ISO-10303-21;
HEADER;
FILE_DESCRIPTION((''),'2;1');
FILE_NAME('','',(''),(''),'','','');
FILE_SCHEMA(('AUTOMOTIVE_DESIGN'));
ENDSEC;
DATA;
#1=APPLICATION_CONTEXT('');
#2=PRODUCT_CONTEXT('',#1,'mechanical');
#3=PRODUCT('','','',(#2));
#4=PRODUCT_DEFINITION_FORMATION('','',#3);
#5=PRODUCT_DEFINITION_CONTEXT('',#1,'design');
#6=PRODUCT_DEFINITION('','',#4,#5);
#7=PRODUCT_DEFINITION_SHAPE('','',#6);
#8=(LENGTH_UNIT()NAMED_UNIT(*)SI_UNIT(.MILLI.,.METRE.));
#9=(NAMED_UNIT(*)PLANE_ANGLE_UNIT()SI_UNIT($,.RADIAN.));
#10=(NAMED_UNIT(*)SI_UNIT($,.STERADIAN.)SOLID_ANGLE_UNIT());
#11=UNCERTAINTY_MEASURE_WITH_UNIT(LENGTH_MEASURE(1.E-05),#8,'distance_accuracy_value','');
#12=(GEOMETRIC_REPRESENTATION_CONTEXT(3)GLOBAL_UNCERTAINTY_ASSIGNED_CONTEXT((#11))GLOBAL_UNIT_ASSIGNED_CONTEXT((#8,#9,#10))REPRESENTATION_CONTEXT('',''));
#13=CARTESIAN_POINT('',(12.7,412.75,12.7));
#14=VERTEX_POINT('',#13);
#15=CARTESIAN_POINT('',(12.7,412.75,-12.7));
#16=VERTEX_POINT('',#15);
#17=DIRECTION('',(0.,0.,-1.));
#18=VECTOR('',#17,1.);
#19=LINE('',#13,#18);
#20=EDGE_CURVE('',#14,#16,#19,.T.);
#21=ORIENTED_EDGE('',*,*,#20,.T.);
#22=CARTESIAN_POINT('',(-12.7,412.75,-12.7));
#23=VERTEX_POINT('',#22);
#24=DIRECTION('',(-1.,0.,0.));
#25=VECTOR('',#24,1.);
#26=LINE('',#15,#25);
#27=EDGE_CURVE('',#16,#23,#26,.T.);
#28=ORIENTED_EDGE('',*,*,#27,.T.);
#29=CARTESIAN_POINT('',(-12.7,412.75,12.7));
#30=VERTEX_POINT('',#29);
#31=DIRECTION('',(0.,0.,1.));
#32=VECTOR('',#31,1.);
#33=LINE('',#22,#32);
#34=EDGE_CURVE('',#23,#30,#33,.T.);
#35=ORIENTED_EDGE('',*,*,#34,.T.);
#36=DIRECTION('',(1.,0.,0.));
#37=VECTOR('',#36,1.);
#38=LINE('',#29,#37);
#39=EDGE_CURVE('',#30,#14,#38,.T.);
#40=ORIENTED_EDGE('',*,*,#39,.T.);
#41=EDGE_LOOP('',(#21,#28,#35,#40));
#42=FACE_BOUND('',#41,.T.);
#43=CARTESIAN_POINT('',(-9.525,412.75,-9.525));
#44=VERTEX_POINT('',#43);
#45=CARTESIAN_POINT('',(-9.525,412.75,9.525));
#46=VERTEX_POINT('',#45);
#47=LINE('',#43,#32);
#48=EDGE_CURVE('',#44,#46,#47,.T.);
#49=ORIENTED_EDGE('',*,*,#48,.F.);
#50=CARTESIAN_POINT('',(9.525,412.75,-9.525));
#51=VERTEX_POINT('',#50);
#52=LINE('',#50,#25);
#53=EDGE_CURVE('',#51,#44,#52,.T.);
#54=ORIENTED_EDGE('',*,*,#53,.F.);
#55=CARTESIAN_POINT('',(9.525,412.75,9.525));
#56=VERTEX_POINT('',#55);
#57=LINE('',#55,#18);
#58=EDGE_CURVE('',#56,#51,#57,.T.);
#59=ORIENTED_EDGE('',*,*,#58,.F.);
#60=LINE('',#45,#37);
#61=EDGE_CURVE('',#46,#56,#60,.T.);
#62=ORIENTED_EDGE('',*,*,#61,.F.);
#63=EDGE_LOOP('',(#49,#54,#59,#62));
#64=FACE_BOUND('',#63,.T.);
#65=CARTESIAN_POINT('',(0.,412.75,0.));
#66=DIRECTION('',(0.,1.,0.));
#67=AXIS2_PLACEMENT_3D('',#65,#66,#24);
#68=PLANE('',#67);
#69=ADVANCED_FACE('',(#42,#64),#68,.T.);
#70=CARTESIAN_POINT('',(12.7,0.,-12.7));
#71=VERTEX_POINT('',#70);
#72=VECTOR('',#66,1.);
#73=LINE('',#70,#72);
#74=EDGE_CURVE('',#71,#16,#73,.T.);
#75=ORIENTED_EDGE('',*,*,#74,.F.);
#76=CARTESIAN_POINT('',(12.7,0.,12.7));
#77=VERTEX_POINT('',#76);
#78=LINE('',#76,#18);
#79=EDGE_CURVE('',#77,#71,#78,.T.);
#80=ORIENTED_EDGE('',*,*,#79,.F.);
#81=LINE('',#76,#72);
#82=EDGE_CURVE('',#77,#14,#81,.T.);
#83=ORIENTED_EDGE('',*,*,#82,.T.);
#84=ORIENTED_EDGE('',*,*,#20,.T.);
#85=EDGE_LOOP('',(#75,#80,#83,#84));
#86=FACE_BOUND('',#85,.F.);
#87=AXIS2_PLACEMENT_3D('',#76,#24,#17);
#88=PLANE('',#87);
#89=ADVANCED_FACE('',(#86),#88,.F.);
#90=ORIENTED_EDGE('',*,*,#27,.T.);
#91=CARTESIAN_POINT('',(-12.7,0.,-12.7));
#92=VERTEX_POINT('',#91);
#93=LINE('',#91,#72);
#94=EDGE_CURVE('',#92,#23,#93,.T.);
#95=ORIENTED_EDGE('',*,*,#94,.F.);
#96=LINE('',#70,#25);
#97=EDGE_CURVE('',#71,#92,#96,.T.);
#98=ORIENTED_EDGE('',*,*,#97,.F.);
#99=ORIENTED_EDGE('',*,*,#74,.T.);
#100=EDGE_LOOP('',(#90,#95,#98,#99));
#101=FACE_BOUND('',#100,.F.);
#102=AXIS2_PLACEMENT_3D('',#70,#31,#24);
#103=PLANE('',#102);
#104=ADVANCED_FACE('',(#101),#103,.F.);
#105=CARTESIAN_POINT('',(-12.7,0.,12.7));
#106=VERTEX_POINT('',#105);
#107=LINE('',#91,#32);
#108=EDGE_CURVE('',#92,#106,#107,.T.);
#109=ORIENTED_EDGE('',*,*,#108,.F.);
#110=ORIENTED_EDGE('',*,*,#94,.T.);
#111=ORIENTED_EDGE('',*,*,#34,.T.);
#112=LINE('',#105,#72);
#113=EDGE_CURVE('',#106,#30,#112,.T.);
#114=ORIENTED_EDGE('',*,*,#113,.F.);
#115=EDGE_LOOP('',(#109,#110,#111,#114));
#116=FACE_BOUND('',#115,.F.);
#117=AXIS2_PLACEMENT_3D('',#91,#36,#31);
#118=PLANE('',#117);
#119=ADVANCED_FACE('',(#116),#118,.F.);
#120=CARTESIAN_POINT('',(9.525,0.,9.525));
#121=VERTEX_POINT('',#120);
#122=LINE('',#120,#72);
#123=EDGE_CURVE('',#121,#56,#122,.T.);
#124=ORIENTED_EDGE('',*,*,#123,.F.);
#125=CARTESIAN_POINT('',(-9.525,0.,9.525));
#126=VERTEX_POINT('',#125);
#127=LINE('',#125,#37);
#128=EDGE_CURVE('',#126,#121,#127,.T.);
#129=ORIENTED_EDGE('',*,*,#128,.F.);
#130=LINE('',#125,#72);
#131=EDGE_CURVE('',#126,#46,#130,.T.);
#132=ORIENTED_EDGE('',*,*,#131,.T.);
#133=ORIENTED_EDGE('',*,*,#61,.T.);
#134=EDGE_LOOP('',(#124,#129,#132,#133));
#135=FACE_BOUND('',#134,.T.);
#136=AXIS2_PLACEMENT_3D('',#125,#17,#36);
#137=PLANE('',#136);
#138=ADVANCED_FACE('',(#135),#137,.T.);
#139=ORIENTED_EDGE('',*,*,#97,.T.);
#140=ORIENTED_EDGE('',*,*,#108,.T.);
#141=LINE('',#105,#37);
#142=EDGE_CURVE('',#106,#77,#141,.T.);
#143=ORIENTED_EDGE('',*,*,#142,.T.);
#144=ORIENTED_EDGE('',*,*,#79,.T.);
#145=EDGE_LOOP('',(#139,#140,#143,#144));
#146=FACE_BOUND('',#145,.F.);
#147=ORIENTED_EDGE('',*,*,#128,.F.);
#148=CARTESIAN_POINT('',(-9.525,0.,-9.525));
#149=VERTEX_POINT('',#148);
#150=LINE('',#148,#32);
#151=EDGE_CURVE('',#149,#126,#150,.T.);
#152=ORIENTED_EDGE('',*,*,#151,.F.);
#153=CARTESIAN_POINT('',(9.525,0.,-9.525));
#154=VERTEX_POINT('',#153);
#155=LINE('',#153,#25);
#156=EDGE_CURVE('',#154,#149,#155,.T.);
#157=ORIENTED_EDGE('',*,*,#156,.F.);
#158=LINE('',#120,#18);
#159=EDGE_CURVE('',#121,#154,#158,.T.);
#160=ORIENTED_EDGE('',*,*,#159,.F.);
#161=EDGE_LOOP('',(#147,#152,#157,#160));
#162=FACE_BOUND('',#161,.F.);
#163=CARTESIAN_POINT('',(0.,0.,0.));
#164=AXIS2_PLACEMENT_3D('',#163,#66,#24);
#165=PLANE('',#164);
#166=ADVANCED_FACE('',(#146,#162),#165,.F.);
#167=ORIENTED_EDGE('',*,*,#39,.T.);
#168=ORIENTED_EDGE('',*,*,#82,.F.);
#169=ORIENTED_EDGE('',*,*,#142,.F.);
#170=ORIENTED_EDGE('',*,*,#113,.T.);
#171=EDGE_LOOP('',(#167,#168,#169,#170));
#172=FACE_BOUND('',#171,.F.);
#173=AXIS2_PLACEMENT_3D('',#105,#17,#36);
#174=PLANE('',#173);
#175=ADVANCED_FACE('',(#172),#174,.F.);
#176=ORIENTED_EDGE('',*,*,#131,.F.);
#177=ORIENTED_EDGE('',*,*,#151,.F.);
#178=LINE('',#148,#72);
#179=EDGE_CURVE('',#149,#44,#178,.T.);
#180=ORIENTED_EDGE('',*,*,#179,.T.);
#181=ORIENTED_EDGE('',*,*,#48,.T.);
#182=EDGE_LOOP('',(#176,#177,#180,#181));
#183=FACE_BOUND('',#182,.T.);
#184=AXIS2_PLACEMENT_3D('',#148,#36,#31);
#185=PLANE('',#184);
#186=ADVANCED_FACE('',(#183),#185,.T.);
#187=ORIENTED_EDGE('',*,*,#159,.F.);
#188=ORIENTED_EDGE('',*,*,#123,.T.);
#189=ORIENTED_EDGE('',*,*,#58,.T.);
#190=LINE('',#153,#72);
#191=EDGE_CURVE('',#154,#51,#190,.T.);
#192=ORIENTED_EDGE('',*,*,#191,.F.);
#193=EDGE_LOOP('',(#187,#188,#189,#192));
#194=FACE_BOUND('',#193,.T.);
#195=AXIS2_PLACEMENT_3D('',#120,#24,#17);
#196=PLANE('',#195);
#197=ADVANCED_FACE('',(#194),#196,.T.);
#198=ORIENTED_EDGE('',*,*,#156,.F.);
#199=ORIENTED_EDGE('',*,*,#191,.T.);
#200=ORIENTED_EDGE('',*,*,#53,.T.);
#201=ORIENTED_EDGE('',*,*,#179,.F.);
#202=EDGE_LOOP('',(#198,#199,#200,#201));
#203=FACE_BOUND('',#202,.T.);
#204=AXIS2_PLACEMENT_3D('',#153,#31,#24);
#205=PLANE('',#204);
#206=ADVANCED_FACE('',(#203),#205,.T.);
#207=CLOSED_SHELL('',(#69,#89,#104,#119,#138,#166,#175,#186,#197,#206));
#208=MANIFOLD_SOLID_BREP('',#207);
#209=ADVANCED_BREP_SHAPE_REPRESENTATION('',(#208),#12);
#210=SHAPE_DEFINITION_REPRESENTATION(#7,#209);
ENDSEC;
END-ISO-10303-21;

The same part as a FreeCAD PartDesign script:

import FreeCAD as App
import Part
import Sketcher
Q = App.Units.Quantity


def add_polygon(sketch, points):
    """Adds a closed chain of lines whose ends are joined by coincident constraints."""
    first, n = sketch.GeometryCount, len(points)
    for a, b in zip(points, points[1:] + points[:1]):
        sketch.addGeometry(Part.LineSegment(App.Vector(*a, 0), App.Vector(*b, 0)), False)
    for i in range(n):
        sketch.addConstraint(Sketcher.Constraint("Coincident", first + i, 2, first + (i + 1) % n, 1))

doc = App.newDocument("Part")
params = doc.addObject("Spreadsheet::Sheet", "Params")
for row, (alias, value) in enumerate([
    ("sketch1_width", "1 in"),
    ("pad1_length", "16.25 in"),
], start=1):
    params.set(f"A{row}", alias)
    params.set(f"B{row}", "=" + value)
    params.setAlias(f"B{row}", alias)

body = doc.addObject("PartDesign::Body", "Body")

# Sketch on XZ plane
sketch1 = body.newObject("Sketcher::SketchObject", "Sketch")
sketch1.AttachmentSupport = (doc.getObject("XZ_Plane"), [""])
sketch1.MapMode = "FlatFace"
add_polygon(sketch1, [(-13, -13), (-13, 13), (13, 13), (13, -13)])  # lines 0-3
add_polygon(sketch1, [(10, 10), (-10, 10), (-10, -10), (10, -10)])  # lines 4-7
sketch1.addConstraint([
    Sketcher.Constraint("Vertical", 0),
    Sketcher.Constraint("Horizontal", 1),
    Sketcher.Constraint("Vertical", 2),
    Sketcher.Constraint("Horizontal", 3),
    Sketcher.Constraint("Horizontal", 4),
    Sketcher.Constraint("Vertical", 5),
    Sketcher.Constraint("Horizontal", 6),
    Sketcher.Constraint("Vertical", 7),
    Sketcher.Constraint("Symmetric", 0, 2, 2, 2, -1, 1),
    Sketcher.Constraint("Symmetric", 4, 2, 6, 2, -1, 1),
    Sketcher.Constraint("Equal", 3, 0),
    Sketcher.Constraint("Equal", 6, 5),
    Sketcher.Constraint("DistanceX", 1, 1, 1, 2, Q("1 in")),
    Sketcher.Constraint("DistanceX", 0, 2, 4, 2, Q("0.125 in")),
])
sketch1.setExpression("Constraints[20]", "Params.sketch1_width")
pad1 = body.newObject("PartDesign::Pad", "Pad")
pad1.Profile = sketch1
pad1.setExpression("Length", "Params.pad1_length")
pad1.Reversed = True

doc.recompute()
